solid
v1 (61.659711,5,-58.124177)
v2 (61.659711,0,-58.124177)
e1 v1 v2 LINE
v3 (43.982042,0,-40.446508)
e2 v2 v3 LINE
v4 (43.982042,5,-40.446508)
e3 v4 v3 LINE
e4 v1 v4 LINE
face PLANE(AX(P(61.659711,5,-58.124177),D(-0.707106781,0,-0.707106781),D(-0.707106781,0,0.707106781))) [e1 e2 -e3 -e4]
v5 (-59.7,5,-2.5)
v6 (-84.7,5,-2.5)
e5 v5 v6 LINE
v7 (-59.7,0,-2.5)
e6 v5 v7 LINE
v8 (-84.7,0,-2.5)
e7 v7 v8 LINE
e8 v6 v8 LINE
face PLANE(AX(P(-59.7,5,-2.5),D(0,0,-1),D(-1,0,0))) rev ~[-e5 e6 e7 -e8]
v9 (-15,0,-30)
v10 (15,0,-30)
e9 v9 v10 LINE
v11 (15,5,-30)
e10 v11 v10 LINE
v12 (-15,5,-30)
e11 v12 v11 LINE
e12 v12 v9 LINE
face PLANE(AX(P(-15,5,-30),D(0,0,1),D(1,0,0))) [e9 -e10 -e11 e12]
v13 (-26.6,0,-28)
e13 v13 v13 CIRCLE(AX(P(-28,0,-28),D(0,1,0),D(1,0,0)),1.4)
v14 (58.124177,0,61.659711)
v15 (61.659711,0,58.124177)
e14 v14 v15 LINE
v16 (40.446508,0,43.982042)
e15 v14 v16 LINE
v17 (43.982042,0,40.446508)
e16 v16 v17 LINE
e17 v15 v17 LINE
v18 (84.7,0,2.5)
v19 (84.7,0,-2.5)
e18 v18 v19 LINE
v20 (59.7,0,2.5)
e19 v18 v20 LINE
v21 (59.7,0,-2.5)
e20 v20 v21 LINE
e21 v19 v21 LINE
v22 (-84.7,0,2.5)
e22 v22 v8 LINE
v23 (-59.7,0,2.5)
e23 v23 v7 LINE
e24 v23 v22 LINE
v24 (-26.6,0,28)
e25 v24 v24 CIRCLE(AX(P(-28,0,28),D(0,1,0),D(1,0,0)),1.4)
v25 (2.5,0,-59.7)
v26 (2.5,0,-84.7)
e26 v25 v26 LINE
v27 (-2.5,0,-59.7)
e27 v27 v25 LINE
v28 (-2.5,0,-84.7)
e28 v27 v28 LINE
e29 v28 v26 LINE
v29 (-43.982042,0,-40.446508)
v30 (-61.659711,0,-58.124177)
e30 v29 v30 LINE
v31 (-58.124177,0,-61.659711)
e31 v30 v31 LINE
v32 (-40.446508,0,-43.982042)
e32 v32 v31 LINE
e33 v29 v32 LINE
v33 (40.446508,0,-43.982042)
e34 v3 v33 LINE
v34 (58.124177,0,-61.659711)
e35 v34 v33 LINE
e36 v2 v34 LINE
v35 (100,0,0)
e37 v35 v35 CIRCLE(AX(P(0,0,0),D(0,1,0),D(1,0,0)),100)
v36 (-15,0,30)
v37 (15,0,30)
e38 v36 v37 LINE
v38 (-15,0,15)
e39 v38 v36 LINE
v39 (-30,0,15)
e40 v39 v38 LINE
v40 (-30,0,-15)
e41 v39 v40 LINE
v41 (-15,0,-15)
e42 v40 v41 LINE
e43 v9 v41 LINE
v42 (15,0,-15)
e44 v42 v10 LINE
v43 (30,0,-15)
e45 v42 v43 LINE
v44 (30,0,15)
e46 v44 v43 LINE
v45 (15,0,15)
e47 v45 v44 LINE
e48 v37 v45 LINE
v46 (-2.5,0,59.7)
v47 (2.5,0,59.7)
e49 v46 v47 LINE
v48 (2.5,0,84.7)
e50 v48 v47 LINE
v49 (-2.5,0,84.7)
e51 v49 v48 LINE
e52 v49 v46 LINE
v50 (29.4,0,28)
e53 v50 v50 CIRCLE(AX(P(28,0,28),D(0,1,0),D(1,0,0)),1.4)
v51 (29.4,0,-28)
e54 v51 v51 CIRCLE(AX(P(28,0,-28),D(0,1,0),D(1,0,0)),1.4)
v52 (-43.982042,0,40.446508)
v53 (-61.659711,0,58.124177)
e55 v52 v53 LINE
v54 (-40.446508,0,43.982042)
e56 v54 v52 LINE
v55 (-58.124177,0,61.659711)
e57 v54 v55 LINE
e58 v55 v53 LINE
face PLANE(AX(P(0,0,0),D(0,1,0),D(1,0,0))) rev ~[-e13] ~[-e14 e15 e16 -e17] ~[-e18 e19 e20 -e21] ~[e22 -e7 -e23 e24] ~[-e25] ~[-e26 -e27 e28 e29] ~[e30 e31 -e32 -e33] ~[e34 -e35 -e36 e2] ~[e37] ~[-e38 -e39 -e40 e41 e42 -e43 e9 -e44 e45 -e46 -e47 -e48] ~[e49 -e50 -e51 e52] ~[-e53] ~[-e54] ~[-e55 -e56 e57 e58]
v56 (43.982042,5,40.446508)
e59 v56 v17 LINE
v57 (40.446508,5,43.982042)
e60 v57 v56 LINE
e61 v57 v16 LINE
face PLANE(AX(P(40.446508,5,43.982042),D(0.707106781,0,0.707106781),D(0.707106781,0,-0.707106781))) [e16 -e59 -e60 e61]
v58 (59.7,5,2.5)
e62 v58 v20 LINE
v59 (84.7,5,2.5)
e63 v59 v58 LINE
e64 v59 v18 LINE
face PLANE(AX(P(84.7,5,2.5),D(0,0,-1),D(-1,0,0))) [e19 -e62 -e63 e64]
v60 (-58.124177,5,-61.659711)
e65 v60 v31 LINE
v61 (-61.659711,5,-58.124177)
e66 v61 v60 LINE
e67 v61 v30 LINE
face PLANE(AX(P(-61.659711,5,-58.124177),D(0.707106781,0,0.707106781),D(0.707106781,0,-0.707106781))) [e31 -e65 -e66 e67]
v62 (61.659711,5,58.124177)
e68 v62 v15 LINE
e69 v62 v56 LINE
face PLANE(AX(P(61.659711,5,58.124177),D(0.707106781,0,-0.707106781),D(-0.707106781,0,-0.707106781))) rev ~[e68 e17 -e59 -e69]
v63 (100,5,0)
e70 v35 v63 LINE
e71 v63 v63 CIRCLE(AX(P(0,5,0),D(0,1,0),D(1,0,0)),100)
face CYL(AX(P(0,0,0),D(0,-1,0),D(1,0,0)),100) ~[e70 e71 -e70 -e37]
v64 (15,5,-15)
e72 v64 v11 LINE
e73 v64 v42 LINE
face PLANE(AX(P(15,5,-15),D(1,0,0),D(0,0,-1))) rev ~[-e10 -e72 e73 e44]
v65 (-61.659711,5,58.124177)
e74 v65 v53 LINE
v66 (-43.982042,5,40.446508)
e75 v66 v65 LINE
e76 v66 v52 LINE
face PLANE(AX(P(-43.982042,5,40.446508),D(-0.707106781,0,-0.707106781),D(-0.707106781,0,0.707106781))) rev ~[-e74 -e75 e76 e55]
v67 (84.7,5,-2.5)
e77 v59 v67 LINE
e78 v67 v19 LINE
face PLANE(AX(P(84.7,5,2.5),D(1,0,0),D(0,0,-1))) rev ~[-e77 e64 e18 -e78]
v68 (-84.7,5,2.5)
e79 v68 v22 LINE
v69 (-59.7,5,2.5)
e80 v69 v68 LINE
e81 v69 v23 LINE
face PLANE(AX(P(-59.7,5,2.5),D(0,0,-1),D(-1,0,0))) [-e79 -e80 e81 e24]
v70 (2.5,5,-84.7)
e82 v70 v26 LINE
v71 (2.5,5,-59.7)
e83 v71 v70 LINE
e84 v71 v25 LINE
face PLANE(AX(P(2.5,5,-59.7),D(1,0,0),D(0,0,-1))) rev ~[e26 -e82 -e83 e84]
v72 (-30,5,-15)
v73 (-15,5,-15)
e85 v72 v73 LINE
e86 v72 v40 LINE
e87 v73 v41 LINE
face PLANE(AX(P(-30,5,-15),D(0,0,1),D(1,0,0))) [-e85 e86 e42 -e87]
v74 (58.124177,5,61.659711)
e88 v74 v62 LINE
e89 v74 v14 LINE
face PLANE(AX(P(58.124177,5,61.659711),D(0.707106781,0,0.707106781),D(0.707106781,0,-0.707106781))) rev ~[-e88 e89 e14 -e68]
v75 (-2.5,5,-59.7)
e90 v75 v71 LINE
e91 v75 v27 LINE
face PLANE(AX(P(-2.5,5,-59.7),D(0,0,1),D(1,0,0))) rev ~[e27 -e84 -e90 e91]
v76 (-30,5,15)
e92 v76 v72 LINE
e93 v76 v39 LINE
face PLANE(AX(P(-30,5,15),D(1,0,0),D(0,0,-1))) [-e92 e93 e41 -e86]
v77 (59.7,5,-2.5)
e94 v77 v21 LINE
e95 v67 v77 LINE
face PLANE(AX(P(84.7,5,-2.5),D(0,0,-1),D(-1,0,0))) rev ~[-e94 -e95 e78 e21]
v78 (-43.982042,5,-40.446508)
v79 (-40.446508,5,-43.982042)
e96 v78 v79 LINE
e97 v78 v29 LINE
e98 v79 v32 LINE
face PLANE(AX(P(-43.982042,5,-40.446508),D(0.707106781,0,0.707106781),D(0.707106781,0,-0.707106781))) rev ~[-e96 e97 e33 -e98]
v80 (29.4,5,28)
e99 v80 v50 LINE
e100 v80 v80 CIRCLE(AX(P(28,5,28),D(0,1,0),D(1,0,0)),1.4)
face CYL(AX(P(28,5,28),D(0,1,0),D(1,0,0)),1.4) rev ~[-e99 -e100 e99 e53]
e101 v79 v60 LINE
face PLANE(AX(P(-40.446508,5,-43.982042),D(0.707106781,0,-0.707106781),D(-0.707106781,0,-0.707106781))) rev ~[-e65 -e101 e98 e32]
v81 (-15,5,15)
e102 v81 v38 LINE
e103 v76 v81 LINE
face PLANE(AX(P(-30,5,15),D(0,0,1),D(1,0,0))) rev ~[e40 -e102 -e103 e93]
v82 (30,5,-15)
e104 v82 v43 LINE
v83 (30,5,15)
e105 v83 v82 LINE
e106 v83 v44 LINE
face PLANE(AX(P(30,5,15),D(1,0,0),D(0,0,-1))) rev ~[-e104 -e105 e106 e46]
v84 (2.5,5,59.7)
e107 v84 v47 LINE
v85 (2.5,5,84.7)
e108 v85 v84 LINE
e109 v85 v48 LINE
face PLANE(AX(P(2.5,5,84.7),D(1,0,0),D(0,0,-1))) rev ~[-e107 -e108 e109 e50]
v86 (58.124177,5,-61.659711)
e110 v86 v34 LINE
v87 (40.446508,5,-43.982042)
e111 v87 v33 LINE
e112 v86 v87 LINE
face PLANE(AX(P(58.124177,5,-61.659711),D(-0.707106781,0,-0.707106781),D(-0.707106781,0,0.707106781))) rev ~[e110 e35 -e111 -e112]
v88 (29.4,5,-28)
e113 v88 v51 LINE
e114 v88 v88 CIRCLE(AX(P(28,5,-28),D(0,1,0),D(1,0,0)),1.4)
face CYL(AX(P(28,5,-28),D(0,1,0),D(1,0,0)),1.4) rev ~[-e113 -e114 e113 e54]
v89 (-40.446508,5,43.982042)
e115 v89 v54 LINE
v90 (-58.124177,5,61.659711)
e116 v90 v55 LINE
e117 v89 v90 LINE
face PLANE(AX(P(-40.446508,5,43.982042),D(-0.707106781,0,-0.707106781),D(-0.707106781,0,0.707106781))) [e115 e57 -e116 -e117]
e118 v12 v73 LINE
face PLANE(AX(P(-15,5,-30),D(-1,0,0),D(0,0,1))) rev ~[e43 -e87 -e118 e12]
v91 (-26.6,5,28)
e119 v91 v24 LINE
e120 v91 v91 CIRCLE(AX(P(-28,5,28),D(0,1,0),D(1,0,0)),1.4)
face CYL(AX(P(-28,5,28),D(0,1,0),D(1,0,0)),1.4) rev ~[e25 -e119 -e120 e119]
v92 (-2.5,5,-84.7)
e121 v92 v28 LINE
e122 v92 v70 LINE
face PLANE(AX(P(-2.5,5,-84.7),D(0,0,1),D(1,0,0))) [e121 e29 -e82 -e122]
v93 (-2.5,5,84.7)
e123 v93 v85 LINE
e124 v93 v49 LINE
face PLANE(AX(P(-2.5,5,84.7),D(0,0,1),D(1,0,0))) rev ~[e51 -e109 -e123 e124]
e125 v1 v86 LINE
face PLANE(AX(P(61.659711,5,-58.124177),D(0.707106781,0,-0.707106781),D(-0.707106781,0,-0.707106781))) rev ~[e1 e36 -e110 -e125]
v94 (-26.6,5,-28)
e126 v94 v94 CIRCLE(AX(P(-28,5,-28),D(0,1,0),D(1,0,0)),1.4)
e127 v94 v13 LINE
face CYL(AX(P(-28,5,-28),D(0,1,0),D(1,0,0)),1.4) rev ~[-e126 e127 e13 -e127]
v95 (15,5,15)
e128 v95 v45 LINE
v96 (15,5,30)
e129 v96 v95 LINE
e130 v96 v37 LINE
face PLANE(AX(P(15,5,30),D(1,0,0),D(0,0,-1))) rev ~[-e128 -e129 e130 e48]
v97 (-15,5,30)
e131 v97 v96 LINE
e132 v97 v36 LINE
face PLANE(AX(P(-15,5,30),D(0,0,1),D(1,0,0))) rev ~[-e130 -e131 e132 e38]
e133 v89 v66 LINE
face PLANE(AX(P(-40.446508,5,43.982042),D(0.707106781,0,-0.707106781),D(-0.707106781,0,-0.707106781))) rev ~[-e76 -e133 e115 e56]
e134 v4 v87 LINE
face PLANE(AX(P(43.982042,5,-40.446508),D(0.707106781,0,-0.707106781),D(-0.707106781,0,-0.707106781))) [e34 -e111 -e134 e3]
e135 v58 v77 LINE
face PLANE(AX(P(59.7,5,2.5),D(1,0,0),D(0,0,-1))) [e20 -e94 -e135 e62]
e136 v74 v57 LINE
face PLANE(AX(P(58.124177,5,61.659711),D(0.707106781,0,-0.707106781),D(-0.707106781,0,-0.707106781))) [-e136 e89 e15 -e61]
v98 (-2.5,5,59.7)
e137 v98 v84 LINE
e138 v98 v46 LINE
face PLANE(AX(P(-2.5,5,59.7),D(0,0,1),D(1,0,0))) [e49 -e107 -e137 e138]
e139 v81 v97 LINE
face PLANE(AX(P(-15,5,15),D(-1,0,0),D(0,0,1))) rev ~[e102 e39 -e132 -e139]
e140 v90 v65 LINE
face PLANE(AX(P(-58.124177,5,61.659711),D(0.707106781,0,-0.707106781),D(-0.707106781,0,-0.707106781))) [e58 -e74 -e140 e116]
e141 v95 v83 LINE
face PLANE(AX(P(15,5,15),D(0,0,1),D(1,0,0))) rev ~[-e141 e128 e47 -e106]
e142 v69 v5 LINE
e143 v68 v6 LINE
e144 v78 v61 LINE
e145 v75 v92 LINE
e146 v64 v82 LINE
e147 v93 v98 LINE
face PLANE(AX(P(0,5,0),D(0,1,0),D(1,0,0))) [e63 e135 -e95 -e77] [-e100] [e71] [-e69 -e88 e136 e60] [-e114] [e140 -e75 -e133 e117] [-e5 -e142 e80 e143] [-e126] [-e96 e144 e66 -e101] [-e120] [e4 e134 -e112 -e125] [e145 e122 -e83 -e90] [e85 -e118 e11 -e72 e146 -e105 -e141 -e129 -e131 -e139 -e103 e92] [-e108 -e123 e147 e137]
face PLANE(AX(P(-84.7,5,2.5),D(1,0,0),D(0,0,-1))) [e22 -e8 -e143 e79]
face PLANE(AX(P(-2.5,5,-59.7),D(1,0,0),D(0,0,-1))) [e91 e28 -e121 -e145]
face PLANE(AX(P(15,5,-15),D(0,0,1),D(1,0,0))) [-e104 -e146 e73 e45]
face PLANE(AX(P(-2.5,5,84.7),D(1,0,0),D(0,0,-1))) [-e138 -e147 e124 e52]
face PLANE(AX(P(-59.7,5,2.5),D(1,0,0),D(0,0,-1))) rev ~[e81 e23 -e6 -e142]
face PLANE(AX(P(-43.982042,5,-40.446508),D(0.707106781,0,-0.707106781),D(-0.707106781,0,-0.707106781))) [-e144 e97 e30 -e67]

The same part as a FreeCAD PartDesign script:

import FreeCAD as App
import Part
import Sketcher
from FreeCAD import Vector


def add_polygon(sketch, points):
    """Adds a closed chain of lines whose ends are joined by coincident constraints."""
    first, n = sketch.GeometryCount, len(points)
    for a, b in zip(points, points[1:] + points[:1]):
        sketch.addGeometry(Part.LineSegment(App.Vector(*a, 0), App.Vector(*b, 0)), False)
    for i in range(n):
        sketch.addConstraint(Sketcher.Constraint("Coincident", first + i, 2, first + (i + 1) % n, 1))

doc = App.newDocument("Part")
body = doc.addObject("PartDesign::Body", "Body")

# Sketch on XZ plane
sketch1 = doc.addObject("Sketcher::SketchObject", "Sketch")
body.addObject(sketch1)
sketch1.AttachmentSupport = (doc.XZ_Plane, [""])
sketch1.MapMode = "FlatFace"
sketch1.addGeometry(Part.Circle(Vector(0, 0, 0), Vector(0, 0, 1), 100), False)
sketch1.addConstraint([
    Sketcher.Constraint("Coincident", 0, 3, -1, 1),
    Sketcher.Constraint("Diameter", 0, 200.0),
])
pad1 = doc.addObject("PartDesign::Pad", "Pad")
body.addObject(pad1)
pad1.Profile = sketch1
pad1.Length = 5
pad1.Reversed = True

# Sketch on XZ plane
sketch2 = doc.addObject("Sketcher::SketchObject", "Sketch001")
body.addObject(sketch2)
sketch2.AttachmentSupport = (doc.XZ_Plane, [""])
sketch2.MapMode = "FlatFace"
sketch2.AttachmentOffset = App.Placement(Vector(0, 0, -5), App.Rotation())
sketch2.addGeometry([
    Part.Circle(Vector(28, -28, 0), Vector(0, 0, 1), 1.4),
    Part.Circle(Vector(28, 28, 0), Vector(0, 0, 1), 1.4),
    Part.Circle(Vector(-28, 28, 0), Vector(0, 0, 1), 1.4),
    Part.Circle(Vector(-28, -28, 0), Vector(0, 0, 1), 1.4),
], False)
sketch2.addConstraint([
    Sketcher.Constraint("Equal", 0, 1),
    Sketcher.Constraint("Equal", 1, 2),
    Sketcher.Constraint("Equal", 2, 3),
    Sketcher.Constraint("Symmetric", 0, 3, 2, 3, -1, 1),
    Sketcher.Constraint("Symmetric", 1, 3, 3, 3, -1, 1),
    Sketcher.Constraint("Symmetric", 1, 3, 2, 3, -2),
    Sketcher.Constraint("Diameter", 0, 2.8),
    Sketcher.Constraint("DistanceX", -1, 1, 0, 3, 28.0),
    Sketcher.Constraint("DistanceY", 0, 3, -1, 1, 28.0),
])
pocket1 = doc.addObject("PartDesign::Pocket", "Pocket")
body.addObject(pocket1)
pocket1.Profile = sketch2
pocket1.Length = 5
pocket1.Reversed = True

# Sketch on XZ plane
sketch3 = doc.addObject("Sketcher::SketchObject", "Sketch002")
body.addObject(sketch3)
sketch3.AttachmentSupport = (doc.XZ_Plane, [""])
sketch3.MapMode = "FlatFace"
sketch3.AttachmentOffset = App.Placement(Vector(0, 0, -5), App.Rotation())
add_polygon(sketch3, [(-2.5, -84.7), (-2.5, -59.7), (2.5, -59.7), (2.5, -84.7)])  # lines 0-3
add_polygon(sketch3, [(-2.5, 59.7), (-2.5, 84.7), (2.5, 84.7), (2.5, 59.7)])  # lines 4-7
sketch3.addConstraint([
    Sketcher.Constraint("Vertical", 0),
    Sketcher.Constraint("Horizontal", 1),
    Sketcher.Constraint("Vertical", 2),
    Sketcher.Constraint("Horizontal", 3),
    Sketcher.Constraint("Vertical", 4),
    Sketcher.Constraint("Horizontal", 5),
    Sketcher.Constraint("Vertical", 6),
    Sketcher.Constraint("Horizontal", 7),
    Sketcher.Constraint("Symmetric", 2, 2, 4, 2, -1, 1),
    Sketcher.Constraint("Symmetric", 0, 2, 6, 2, -1, 1),
    Sketcher.Constraint("Vertical", 3, 2, 4, 2),
    Sketcher.Constraint("DistanceX", 1, 1, 1, 2, 5.0),
    Sketcher.Constraint("DistanceY", 0, 1, 0, 2, 25.0),
    Sketcher.Constraint("DistanceY", 0, 2, -1, 1, 59.7),
])
pocket2 = doc.addObject("PartDesign::Pocket", "Pocket001")
body.addObject(pocket2)
pocket2.Profile = sketch3
pocket2.Length = 5
pocket2.Reversed = True
doc.recompute()

polarpattern = doc.addObject("PartDesign::PolarPattern", "PolarPattern")
body.addObject(polarpattern)
polarpattern.Originals = [pocket2]
polarpattern.Axis = (doc.Y_Axis, [""])
polarpattern.Angle = 135
polarpattern.Occurrences = 4
body.Tip = polarpattern

# Sketch on XZ plane
sketch4 = doc.addObject("Sketcher::SketchObject", "Sketch003")
body.addObject(sketch4)
sketch4.AttachmentSupport = (doc.XZ_Plane, [""])
sketch4.MapMode = "FlatFace"
sketch4.AttachmentOffset = App.Placement(Vector(0, 0, -5), App.Rotation())
add_polygon(sketch4, [(15, 15), (30, 15), (30, -15), (15, -15), (15, -30), (-15, -30), (-15, -15), (-30, -15), (-30, 15), (-15, 15), (-15, 30), (15, 30)])  # lines 0-11
sketch4.addConstraint([
    Sketcher.Constraint("Horizontal", 0),
    Sketcher.Constraint("Vertical", 1),
    Sketcher.Constraint("Horizontal", 2),
    Sketcher.Constraint("Vertical", 3),
    Sketcher.Constraint("Horizontal", 4),
    Sketcher.Constraint("Vertical", 5),
    Sketcher.Constraint("Horizontal", 6),
    Sketcher.Constraint("Vertical", 7),
    Sketcher.Constraint("Horizontal", 8),
    Sketcher.Constraint("Vertical", 9),
    Sketcher.Constraint("Horizontal", 10),
    Sketcher.Constraint("Vertical", 11),
    Sketcher.Constraint("Symmetric", 0, 2, 6, 2, -1, 1),
    Sketcher.Constraint("Symmetric", 2, 2, 8, 2, -1, 1),
    Sketcher.Constraint("Symmetric", 4, 2, 10, 2, -1, 1),
    Sketcher.Constraint("Symmetric", 2, 2, 5, 2, -2),
    Sketcher.Constraint("Equal", 10, 1),
    Sketcher.Constraint("Equal", 8, 3),
    Sketcher.Constraint("DistanceX", 0, 1, 0, 2, 15.0),
    Sketcher.Constraint("DistanceX", 4, 2, 4, 1, 30.0),
])
pocket3 = doc.addObject("PartDesign::Pocket", "Pocket002")
body.addObject(pocket3)
pocket3.Profile = sketch4
pocket3.Length = 5
pocket3.Reversed = True

doc.recompute()
